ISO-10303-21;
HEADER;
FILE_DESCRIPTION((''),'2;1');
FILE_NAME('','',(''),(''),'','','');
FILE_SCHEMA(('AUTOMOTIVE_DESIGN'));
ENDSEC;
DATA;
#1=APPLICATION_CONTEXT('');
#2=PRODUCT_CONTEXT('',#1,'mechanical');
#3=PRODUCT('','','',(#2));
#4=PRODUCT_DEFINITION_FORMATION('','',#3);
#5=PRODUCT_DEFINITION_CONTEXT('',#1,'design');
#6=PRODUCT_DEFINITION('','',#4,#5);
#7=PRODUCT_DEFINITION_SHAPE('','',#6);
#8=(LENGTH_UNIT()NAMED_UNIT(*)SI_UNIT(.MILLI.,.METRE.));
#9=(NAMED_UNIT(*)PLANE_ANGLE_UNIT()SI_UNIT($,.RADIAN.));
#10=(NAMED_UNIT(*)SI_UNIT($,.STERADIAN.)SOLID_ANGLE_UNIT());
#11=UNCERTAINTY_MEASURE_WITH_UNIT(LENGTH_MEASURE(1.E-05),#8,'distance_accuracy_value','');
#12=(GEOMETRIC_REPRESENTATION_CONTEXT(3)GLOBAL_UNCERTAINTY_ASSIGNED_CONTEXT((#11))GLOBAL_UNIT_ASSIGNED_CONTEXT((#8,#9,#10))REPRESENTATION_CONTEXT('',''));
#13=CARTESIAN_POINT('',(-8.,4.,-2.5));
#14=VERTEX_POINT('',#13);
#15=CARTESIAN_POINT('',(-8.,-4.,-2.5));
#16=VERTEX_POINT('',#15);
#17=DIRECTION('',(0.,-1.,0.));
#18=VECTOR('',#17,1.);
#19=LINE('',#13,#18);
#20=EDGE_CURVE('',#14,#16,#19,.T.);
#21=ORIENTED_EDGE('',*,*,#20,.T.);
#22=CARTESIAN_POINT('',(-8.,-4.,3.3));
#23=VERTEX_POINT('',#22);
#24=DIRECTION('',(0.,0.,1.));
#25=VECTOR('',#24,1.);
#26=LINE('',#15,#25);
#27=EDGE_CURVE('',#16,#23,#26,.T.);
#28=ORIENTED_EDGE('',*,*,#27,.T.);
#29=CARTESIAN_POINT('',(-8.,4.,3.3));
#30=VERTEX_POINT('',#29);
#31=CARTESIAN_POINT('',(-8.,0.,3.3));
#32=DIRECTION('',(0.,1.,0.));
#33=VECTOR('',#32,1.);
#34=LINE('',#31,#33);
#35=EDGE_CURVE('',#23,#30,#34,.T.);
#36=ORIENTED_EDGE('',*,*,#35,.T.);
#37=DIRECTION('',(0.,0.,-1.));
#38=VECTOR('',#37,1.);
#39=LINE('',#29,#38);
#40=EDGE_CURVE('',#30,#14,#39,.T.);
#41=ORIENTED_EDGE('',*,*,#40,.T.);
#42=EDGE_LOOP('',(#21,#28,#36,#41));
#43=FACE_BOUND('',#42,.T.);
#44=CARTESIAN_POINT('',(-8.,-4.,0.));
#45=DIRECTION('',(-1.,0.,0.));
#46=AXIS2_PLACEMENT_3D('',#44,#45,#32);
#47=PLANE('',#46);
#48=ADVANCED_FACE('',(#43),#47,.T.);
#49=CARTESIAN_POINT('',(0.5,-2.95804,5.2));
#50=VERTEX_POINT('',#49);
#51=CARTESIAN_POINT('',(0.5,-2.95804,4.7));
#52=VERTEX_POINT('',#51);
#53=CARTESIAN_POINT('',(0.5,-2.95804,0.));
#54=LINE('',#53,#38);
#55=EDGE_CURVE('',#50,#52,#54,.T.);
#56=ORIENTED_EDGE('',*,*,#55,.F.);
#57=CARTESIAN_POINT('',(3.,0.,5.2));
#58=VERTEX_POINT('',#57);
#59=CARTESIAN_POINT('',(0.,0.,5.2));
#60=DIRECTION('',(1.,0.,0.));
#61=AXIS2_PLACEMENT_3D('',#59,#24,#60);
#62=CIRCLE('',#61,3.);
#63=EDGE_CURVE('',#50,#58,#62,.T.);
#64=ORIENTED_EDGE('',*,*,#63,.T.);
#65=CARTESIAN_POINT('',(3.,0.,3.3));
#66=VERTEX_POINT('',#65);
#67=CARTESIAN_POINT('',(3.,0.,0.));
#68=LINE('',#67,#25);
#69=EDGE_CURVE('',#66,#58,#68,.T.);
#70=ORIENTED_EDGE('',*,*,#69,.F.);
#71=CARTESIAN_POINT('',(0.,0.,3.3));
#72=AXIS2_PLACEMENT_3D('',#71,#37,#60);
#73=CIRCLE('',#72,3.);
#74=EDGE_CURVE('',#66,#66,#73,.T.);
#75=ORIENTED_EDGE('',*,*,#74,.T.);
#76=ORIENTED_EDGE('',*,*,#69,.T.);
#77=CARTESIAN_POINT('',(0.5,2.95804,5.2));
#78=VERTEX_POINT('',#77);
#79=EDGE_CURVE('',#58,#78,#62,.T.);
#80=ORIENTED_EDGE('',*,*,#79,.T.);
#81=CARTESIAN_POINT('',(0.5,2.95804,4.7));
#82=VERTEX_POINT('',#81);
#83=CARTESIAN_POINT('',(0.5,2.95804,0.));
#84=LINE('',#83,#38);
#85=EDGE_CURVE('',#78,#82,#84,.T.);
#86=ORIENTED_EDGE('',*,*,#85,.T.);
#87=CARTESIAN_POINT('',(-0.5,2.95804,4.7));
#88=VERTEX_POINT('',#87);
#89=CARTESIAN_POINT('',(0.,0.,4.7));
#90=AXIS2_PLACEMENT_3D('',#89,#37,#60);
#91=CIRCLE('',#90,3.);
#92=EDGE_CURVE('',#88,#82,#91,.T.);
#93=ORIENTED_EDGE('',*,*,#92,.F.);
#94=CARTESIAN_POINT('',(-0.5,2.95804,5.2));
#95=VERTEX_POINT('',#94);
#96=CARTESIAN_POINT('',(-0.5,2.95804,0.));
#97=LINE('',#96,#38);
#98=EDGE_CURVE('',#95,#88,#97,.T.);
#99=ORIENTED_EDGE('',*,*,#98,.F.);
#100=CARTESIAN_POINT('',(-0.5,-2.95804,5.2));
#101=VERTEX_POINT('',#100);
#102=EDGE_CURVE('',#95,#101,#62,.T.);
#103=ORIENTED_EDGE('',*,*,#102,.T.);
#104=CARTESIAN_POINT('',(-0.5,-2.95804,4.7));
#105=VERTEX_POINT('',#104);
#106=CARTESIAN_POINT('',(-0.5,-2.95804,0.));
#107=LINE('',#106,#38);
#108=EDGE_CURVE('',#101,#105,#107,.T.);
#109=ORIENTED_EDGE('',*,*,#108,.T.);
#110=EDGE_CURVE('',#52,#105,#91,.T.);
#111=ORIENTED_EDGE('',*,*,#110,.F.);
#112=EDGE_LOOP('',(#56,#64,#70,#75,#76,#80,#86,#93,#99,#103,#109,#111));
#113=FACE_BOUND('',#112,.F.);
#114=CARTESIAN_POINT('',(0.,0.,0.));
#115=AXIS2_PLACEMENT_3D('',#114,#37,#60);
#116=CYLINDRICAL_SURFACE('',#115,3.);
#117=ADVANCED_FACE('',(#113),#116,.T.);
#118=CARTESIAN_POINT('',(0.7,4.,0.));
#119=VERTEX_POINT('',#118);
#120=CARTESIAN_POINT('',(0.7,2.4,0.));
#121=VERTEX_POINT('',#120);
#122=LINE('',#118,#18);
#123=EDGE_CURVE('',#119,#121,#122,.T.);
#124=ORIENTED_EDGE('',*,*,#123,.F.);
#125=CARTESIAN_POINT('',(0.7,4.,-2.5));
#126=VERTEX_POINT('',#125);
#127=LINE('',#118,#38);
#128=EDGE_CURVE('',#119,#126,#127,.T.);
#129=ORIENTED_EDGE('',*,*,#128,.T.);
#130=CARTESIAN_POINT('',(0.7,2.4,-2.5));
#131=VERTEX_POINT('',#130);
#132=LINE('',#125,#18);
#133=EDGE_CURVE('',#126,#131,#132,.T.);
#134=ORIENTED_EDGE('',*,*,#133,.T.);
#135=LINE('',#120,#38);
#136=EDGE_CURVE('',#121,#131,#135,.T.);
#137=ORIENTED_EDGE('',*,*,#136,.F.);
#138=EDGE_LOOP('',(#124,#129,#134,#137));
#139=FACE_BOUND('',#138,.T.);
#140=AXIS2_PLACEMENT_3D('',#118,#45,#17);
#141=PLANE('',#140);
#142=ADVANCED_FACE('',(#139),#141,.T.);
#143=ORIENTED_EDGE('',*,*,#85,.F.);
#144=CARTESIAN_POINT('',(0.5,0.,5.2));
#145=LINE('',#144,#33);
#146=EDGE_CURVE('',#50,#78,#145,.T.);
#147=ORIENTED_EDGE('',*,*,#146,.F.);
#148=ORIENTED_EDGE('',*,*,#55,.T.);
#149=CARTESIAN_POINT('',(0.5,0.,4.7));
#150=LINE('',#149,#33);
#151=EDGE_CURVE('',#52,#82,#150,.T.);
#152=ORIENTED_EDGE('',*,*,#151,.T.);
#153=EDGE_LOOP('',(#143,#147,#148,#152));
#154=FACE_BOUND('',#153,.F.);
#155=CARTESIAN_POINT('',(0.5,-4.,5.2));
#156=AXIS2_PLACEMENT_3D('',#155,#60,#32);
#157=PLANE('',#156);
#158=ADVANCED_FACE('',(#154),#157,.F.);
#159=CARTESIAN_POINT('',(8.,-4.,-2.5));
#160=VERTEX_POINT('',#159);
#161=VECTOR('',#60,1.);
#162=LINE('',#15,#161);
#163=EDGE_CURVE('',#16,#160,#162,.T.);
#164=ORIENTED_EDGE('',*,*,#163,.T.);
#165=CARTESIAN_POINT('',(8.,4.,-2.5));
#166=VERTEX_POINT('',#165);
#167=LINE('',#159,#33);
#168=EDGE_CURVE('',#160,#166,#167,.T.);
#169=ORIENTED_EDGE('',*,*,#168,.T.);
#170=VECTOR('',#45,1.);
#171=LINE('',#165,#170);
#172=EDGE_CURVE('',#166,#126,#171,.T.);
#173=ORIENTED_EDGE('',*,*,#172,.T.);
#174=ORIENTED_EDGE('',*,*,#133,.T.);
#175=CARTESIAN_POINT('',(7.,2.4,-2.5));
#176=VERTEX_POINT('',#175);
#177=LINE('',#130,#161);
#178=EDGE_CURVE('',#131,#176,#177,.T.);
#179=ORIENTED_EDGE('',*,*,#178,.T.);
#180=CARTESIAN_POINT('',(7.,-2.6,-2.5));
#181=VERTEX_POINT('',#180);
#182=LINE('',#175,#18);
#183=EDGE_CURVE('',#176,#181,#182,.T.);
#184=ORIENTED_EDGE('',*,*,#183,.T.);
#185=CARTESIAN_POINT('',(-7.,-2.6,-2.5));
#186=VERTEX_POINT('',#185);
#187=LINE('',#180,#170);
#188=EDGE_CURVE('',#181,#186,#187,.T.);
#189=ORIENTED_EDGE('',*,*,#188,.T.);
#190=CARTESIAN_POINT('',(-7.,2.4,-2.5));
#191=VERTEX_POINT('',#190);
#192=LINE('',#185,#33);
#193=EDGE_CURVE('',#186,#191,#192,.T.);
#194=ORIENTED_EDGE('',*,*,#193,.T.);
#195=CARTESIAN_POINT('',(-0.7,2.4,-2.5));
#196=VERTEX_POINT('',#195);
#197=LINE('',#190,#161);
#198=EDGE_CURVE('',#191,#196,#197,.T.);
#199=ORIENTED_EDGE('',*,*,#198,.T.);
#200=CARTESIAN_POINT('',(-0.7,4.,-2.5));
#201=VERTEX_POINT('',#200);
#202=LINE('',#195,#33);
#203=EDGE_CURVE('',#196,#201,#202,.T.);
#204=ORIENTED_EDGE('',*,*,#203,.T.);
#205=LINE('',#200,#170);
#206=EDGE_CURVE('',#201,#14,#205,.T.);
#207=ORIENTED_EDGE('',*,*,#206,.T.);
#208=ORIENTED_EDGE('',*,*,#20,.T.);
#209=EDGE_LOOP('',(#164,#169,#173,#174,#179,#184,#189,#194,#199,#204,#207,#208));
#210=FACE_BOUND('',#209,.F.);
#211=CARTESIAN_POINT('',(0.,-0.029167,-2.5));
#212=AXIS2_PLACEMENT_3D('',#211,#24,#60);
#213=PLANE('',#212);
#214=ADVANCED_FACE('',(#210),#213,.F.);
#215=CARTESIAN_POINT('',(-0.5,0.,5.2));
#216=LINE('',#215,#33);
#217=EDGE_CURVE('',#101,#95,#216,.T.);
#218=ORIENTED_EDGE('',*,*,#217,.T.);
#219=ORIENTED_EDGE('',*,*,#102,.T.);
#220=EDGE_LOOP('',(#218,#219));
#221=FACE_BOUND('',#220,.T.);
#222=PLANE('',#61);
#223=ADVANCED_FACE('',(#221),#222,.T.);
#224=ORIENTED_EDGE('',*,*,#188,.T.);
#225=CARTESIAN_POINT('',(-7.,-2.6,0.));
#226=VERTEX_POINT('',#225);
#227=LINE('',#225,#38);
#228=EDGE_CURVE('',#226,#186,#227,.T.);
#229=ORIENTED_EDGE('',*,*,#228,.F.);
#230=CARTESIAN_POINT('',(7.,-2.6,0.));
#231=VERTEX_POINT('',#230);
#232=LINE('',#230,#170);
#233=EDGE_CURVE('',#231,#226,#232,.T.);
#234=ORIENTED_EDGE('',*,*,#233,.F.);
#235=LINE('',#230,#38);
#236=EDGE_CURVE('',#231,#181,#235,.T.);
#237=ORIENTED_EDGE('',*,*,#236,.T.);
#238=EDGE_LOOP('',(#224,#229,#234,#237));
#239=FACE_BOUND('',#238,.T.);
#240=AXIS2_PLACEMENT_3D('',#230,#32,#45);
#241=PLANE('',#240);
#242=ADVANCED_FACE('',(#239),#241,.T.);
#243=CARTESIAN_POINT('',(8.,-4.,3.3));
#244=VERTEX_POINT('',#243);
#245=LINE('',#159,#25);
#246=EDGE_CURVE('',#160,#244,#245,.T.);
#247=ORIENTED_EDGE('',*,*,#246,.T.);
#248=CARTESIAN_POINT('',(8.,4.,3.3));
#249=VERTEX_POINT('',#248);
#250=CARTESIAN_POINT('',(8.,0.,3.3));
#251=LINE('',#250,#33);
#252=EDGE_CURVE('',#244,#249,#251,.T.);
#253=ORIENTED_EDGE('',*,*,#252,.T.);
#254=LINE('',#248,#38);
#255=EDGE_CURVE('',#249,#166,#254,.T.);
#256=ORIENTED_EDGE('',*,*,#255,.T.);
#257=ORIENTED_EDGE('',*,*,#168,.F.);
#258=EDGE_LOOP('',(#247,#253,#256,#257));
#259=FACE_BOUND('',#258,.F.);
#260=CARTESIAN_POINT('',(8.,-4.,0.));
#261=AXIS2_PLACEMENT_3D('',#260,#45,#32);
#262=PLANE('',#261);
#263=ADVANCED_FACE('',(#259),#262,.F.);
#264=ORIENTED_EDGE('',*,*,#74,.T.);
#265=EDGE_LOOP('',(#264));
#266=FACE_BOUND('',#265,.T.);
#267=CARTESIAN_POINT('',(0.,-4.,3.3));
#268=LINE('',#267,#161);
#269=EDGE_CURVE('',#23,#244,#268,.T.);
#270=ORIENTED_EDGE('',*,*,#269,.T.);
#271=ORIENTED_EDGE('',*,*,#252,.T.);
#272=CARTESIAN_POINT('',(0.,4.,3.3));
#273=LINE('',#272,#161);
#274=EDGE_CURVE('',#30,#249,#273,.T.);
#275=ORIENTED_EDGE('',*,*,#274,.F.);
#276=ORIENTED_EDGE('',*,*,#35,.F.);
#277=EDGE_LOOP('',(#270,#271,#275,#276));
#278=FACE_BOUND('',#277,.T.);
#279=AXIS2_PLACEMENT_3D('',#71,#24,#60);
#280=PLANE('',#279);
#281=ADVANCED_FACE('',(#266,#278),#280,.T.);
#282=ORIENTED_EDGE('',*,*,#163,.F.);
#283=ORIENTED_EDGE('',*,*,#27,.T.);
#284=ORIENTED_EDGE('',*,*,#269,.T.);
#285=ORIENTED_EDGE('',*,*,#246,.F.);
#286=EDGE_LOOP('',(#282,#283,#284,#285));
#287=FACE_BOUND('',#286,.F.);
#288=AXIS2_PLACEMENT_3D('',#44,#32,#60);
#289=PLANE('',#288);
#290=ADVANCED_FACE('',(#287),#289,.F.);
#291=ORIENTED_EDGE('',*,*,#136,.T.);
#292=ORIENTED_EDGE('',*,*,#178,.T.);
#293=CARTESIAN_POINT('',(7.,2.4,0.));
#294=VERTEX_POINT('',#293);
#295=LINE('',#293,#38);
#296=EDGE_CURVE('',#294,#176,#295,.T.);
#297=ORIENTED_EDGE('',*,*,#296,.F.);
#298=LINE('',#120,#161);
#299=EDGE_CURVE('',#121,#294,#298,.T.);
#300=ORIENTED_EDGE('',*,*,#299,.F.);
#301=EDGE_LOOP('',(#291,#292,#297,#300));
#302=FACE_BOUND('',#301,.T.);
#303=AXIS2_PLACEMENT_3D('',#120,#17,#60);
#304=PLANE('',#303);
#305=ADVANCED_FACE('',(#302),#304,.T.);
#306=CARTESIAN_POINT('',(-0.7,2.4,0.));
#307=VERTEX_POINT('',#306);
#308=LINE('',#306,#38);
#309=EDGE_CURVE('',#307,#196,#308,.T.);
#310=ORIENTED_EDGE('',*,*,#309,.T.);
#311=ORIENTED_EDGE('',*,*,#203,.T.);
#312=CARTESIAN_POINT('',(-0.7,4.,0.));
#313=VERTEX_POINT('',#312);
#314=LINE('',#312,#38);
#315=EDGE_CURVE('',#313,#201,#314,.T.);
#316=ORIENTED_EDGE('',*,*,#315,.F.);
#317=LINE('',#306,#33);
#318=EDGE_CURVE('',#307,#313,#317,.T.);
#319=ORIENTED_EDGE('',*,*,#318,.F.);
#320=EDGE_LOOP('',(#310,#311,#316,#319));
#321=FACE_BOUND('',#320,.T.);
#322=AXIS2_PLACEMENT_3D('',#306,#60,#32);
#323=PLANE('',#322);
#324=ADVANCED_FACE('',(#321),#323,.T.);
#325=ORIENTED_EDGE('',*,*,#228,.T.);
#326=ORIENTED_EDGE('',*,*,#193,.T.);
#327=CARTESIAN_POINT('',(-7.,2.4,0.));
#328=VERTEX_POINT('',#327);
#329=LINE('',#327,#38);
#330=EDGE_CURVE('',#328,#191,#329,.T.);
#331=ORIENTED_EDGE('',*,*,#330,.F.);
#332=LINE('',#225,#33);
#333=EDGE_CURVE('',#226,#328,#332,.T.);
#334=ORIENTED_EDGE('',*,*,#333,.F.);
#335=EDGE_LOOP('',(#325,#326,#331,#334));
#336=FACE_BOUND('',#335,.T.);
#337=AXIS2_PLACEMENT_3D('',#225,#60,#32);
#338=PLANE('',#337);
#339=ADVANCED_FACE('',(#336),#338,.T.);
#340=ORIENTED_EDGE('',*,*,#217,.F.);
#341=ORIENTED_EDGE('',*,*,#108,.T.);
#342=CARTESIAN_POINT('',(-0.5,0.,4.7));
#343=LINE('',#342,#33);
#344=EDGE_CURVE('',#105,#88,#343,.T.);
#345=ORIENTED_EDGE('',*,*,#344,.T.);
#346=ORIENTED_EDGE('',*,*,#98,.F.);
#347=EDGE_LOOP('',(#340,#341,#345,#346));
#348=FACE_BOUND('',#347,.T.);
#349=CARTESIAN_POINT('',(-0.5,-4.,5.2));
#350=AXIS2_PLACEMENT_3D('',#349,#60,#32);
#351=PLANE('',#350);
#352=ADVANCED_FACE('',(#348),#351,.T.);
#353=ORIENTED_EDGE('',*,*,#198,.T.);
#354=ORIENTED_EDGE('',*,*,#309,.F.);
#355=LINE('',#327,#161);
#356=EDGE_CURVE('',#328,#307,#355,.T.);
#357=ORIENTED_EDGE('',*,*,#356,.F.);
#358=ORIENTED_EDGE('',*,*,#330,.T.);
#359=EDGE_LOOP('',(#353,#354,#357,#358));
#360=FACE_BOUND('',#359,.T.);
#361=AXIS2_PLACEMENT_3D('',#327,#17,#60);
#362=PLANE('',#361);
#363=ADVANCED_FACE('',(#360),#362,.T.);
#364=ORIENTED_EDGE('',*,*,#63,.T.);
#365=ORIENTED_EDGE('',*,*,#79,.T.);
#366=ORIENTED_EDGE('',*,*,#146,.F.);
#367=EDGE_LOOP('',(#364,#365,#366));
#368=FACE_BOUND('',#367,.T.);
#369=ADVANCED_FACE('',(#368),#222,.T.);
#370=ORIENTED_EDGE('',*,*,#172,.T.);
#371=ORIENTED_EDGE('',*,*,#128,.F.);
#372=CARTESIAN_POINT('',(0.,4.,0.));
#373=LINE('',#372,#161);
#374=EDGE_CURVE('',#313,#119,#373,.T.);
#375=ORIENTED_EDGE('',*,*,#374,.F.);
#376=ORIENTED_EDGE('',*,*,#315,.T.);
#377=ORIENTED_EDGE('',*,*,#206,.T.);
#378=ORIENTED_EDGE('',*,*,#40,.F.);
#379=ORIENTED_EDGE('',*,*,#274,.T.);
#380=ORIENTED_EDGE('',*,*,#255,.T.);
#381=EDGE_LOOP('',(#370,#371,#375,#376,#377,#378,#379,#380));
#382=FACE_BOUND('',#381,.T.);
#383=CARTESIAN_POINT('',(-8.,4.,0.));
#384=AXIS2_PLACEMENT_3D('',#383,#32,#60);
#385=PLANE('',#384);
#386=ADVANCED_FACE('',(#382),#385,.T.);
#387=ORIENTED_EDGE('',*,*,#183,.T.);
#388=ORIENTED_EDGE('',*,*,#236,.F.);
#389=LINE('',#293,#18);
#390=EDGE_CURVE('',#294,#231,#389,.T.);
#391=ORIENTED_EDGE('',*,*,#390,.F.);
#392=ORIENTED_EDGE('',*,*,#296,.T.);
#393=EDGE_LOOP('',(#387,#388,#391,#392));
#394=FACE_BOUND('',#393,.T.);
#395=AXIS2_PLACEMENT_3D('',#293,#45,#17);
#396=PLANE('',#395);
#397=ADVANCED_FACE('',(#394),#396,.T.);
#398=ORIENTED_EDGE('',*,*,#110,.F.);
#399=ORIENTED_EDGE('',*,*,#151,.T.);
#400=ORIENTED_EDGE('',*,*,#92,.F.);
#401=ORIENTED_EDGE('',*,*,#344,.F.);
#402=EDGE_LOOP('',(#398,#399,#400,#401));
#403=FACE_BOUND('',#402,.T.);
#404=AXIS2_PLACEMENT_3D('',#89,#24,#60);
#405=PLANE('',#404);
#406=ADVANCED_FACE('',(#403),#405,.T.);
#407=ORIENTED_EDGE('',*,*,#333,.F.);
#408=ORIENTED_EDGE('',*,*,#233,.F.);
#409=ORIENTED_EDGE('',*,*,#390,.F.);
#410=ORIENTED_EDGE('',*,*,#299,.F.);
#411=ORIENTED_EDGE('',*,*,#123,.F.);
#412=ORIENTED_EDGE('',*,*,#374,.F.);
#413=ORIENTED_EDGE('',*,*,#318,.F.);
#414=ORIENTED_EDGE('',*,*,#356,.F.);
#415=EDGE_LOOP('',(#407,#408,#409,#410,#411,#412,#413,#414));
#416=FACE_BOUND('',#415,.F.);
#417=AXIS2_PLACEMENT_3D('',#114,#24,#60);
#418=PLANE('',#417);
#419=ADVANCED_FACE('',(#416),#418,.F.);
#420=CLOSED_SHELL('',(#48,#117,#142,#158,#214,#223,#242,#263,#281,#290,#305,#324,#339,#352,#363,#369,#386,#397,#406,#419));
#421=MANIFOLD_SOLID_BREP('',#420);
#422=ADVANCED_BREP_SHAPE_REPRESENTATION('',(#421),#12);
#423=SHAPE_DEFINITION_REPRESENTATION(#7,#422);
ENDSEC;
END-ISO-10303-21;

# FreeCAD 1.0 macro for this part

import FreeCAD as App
import Part
import Sketcher

V = App.Vector

doc = App.newDocument("Part")
body = doc.addObject("PartDesign::Body", "Body")

sketch1 = body.newObject("Sketcher::SketchObject", "Sketch")
sketch1.AttachmentSupport = (doc.getObject("XY_Plane"), [""])
sketch1.MapMode = "FlatFace"
sketch1.addGeometry(Part.LineSegment(V(-8, 4, 0), V(-8, -4, 0)), False)
sketch1.addGeometry(Part.LineSegment(V(-8, -4, 0), V(8, -4, 0)), False)
sketch1.addGeometry(Part.LineSegment(V(8, -4, 0), V(8, 4, 0)), False)
sketch1.addGeometry(Part.LineSegment(V(8, 4, 0), V(0.7, 4, 0)), False)
sketch1.addGeometry(Part.LineSegment(V(0.7, 4, 0), V(0.7, 2.4, 0)), False)
sketch1.addGeometry(Part.LineSegment(V(0.7, 2.4, 0), V(7, 2.4, 0)), False)
sketch1.addGeometry(Part.LineSegment(V(7, 2.4, 0), V(7, -2.6, 0)), False)
sketch1.addGeometry(Part.LineSegment(V(7, -2.6, 0), V(-7, -2.6, 0)), False)
sketch1.addGeometry(Part.LineSegment(V(-7, -2.6, 0), V(-7, 2.4, 0)), False)
sketch1.addGeometry(Part.LineSegment(V(-7, 2.4, 0), V(-0.7, 2.4, 0)), False)
sketch1.addGeometry(Part.LineSegment(V(-0.7, 2.4, 0), V(-0.7, 4, 0)), False)
sketch1.addGeometry(Part.LineSegment(V(-0.7, 4, 0), V(-8, 4, 0)), False)
sketch1.addConstraint(Sketcher.Constraint("Coincident", 0, 2, 1, 1))
sketch1.addConstraint(Sketcher.Constraint("Coincident", 1, 2, 2, 1))
sketch1.addConstraint(Sketcher.Constraint("Coincident", 2, 2, 3, 1))
sketch1.addConstraint(Sketcher.Constraint("Coincident", 3, 2, 4, 1))
sketch1.addConstraint(Sketcher.Constraint("Coincident", 4, 2, 5, 1))
sketch1.addConstraint(Sketcher.Constraint("Coincident", 5, 2, 6, 1))
sketch1.addConstraint(Sketcher.Constraint("Coincident", 6, 2, 7, 1))
sketch1.addConstraint(Sketcher.Constraint("Coincident", 7, 2, 8, 1))
sketch1.addConstraint(Sketcher.Constraint("Coincident", 8, 2, 9, 1))
sketch1.addConstraint(Sketcher.Constraint("Coincident", 9, 2, 10, 1))
sketch1.addConstraint(Sketcher.Constraint("Coincident", 10, 2, 11, 1))
sketch1.addConstraint(Sketcher.Constraint("Coincident", 11, 2, 0, 1))
sketch1.addConstraint(Sketcher.Constraint("Vertical", 0))
sketch1.addConstraint(Sketcher.Constraint("Horizontal", 1))
sketch1.addConstraint(Sketcher.Constraint("Vertical", 2))
sketch1.addConstraint(Sketcher.Constraint("Horizontal", 3))
sketch1.addConstraint(Sketcher.Constraint("Vertical", 4))
sketch1.addConstraint(Sketcher.Constraint("Horizontal", 5))
sketch1.addConstraint(Sketcher.Constraint("Vertical", 6))
sketch1.addConstraint(Sketcher.Constraint("Horizontal", 7))
sketch1.addConstraint(Sketcher.Constraint("Vertical", 8))
sketch1.addConstraint(Sketcher.Constraint("Horizontal", 9))
sketch1.addConstraint(Sketcher.Constraint("Vertical", 10))
sketch1.addConstraint(Sketcher.Constraint("Horizontal", 11))
sketch1.addConstraint(Sketcher.Constraint("Symmetric", 0, 2, 2, 2, -1, 1))
sketch1.addConstraint(Sketcher.Constraint("Symmetric", 5, 2, 8, 2, -2))
sketch1.addConstraint(Sketcher.Constraint("Symmetric", 3, 2, 10, 2, -2))
sketch1.addConstraint(Sketcher.Constraint("DistanceX", 1, 1, 1, 2, 16.0))
sketch1.addConstraint(Sketcher.Constraint("DistanceX", 7, 2, 7, 1, 14.0))
sketch1.addConstraint(Sketcher.Constraint("DistanceY", 0, 2, 0, 1, 8.0))
sketch1.addConstraint(Sketcher.Constraint("DistanceY", 6, 2, 6, 1, 5.0))
sketch1.addConstraint(Sketcher.Constraint("DistanceX", 3, 2, 3, 1, 7.3))
sketch1.addConstraint(Sketcher.Constraint("DistanceY", 4, 2, 4, 1, 1.6))
pad1 = body.newObject("PartDesign::Pad", "Pad")
pad1.Profile = sketch1
pad1.Length = 2.5
pad1.Reversed = True

sketch2 = body.newObject("Sketcher::SketchObject", "Sketch001")
sketch2.AttachmentSupport = (doc.getObject("XY_Plane"), [""])
sketch2.MapMode = "FlatFace"
sketch2.addGeometry(Part.LineSegment(V(-8, 4, 0), V(-8, -4, 0)), False)
sketch2.addGeometry(Part.LineSegment(V(-8, -4, 0), V(8, -4, 0)), False)
sketch2.addGeometry(Part.LineSegment(V(8, -4, 0), V(8, 4, 0)), False)
sketch2.addGeometry(Part.LineSegment(V(8, 4, 0), V(-8, 4, 0)), False)
sketch2.addConstraint(Sketcher.Constraint("Coincident", 0, 2, 1, 1))
sketch2.addConstraint(Sketcher.Constraint("Coincident", 1, 2, 2, 1))
sketch2.addConstraint(Sketcher.Constraint("Coincident", 2, 2, 3, 1))
sketch2.addConstraint(Sketcher.Constraint("Coincident", 3, 2, 0, 1))
sketch2.addConstraint(Sketcher.Constraint("Vertical", 0))
sketch2.addConstraint(Sketcher.Constraint("Horizontal", 1))
sketch2.addConstraint(Sketcher.Constraint("Vertical", 2))
sketch2.addConstraint(Sketcher.Constraint("Horizontal", 3))
sketch2.addConstraint(Sketcher.Constraint("Symmetric", 0, 2, 2, 2, -1, 1))
sketch2.addConstraint(Sketcher.Constraint("DistanceX", 1, 1, 1, 2, 16.0))
sketch2.addConstraint(Sketcher.Constraint("DistanceY", 0, 2, 0, 1, 8.0))
pad2 = body.newObject("PartDesign::Pad", "Pad001")
pad2.Profile = sketch2
pad2.Length = 3.3

sketch3 = body.newObject("Sketcher::SketchObject", "Sketch002")
sketch3.AttachmentSupport = (doc.getObject("XY_Plane"), [""])
sketch3.MapMode = "FlatFace"
sketch3.addGeometry(Part.Circle(V(0, 0, 0), V(0, 0, 1), 3), False)
sketch3.addConstraint(Sketcher.Constraint("Coincident", 0, 3, -1, 1))
sketch3.addConstraint(Sketcher.Constraint("Diameter", 0, 6.0))
pad3 = body.newObject("PartDesign::Pad", "Pad002")
pad3.Profile = sketch3
pad3.Length = 5.2

sketch4 = body.newObject("Sketcher::SketchObject", "Sketch003")
sketch4.AttachmentSupport = (doc.getObject("XY_Plane"), [""])
sketch4.MapMode = "FlatFace"
sketch4.AttachmentOffset = App.Placement(V(0, 0, 5.2), App.Rotation())
sketch4.addGeometry(Part.LineSegment(V(-0.5, 4, 0), V(-0.5, -4, 0)), False)
sketch4.addGeometry(Part.LineSegment(V(-0.5, -4, 0), V(0.5, -4, 0)), False)
sketch4.addGeometry(Part.LineSegment(V(0.5, -4, 0), V(0.5, 4, 0)), False)
sketch4.addGeometry(Part.LineSegment(V(0.5, 4, 0), V(-0.5, 4, 0)), False)
sketch4.addConstraint(Sketcher.Constraint("Coincident", 0, 2, 1, 1))
sketch4.addConstraint(Sketcher.Constraint("Coincident", 1, 2, 2, 1))
sketch4.addConstraint(Sketcher.Constraint("Coincident", 2, 2, 3, 1))
sketch4.addConstraint(Sketcher.Constraint("Coincident", 3, 2, 0, 1))
sketch4.addConstraint(Sketcher.Constraint("Vertical", 0))
sketch4.addConstraint(Sketcher.Constraint("Horizontal", 1))
sketch4.addConstraint(Sketcher.Constraint("Vertical", 2))
sketch4.addConstraint(Sketcher.Constraint("Horizontal", 3))
sketch4.addConstraint(Sketcher.Constraint("Symmetric", 0, 2, 2, 2, -1, 1))
sketch4.addConstraint(Sketcher.Constraint("DistanceX", 1, 1, 1, 2, 1.0))
sketch4.addConstraint(Sketcher.Constraint("DistanceY", 0, 2, 0, 1, 8.0))
pocket1 = body.newObject("PartDesign::Pocket", "Pocket")
pocket1.Profile = sketch4
pocket1.Length = 0.5

doc.recompute()
